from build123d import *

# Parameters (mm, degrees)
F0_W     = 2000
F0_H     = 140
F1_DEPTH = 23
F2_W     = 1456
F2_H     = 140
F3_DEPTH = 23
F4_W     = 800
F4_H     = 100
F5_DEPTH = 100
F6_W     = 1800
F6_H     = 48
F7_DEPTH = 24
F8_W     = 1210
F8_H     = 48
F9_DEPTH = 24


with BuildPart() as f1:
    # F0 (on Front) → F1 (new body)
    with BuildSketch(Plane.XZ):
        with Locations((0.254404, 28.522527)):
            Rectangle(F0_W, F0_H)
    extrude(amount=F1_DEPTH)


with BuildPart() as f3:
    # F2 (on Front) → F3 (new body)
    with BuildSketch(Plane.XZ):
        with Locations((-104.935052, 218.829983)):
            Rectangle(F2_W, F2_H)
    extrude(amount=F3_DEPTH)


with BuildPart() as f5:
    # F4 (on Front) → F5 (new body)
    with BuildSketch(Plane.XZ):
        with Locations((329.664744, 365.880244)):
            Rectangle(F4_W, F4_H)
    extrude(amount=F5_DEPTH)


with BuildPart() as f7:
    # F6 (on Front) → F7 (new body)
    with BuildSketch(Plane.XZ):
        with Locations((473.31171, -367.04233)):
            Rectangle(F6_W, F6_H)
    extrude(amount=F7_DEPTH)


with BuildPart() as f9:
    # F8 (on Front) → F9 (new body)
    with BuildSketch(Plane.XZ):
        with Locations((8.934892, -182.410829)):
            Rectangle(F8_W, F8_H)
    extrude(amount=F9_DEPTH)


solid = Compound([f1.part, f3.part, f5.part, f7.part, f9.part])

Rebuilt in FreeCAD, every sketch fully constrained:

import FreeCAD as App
import Part
import Sketcher
from FreeCAD import Vector
Q = App.Units.Quantity

doc = App.newDocument("Part")
params = doc.addObject("Spreadsheet::Sheet", "Params")
for row, (alias, value) in enumerate([
    ("sketch1_width", "2000 mm"),
    ("sketch1_height", "140 mm"),
    ("pad1_length", "23 mm"),
    ("sketch2_width", "1456 mm"),
    ("sketch2_height", "140 mm"),
    ("pad2_length", "23 mm"),
    ("sketch3_width", "800 mm"),
    ("sketch3_height", "100 mm"),
    ("pad3_length", "100 mm"),
    ("sketch4_width", "1800 mm"),
    ("sketch4_height", "48 mm"),
    ("pad4_length", "24 mm"),
    ("sketch5_width", "1210 mm"),
    ("sketch5_height", "48 mm"),
    ("pad5_length", "24 mm"),
], start=1):
    params.set(f"A{row}", alias)
    params.set(f"B{row}", "=" + value)
    params.setAlias(f"B{row}", alias)

body = doc.addObject("PartDesign::Body", "Body")

# Sketch on XZ plane
sketch1 = body.newObject("Sketcher::SketchObject", "Sketch")
sketch1.AttachmentSupport = (doc.getObject("XZ_Plane"), [""])
sketch1.MapMode = "FlatFace"
sketch1.addGeometry([
    Part.LineSegment(Vector(-1000, 99, 0), Vector(-1000, -41, 0)),
    Part.LineSegment(Vector(-1000, -41, 0), Vector(1000, -41, 0)),
    Part.LineSegment(Vector(1000, -41, 0), Vector(1000, 99, 0)),
    Part.LineSegment(Vector(1000, 99, 0), Vector(-1000, 99, 0)),
], False)
sketch1.addConstraint([
    Sketcher.Constraint("Coincident", 0, 2, 1, 1),
    Sketcher.Constraint("Coincident", 1, 2, 2, 1),
    Sketcher.Constraint("Coincident", 2, 2, 3, 1),
    Sketcher.Constraint("Coincident", 3, 2, 0, 1),
    Sketcher.Constraint("Vertical", 0),
    Sketcher.Constraint("Horizontal", 1),
    Sketcher.Constraint("Vertical", 2),
    Sketcher.Constraint("Horizontal", 3),
    Sketcher.Constraint("DistanceX", 1, 1, 1, 2, Q("2000 mm")),
    Sketcher.Constraint("DistanceY", 0, 2, 0, 1, Q("140 mm")),
    Sketcher.Constraint("DistanceX", 0, 2, -1, 1, Q("999.745596 mm")),
    Sketcher.Constraint("DistanceY", 0, 2, -1, 1, Q("41.477473 mm")),
])
sketch1.setExpression("Constraints[8]", "Params.sketch1_width")
sketch1.setExpression("Constraints[9]", "Params.sketch1_height")
pad1 = body.newObject("PartDesign::Pad", "Pad")
pad1.Profile = sketch1
pad1.setExpression("Length", "Params.pad1_length")
body2 = doc.addObject("PartDesign::Body", "Body001")

# Sketch on XZ plane
sketch2 = body2.newObject("Sketcher::SketchObject", "Sketch001")
sketch2.AttachmentSupport = (doc.getObject("XZ_Plane001"), [""])
sketch2.MapMode = "FlatFace"
sketch2.addGeometry([
    Part.LineSegment(Vector(-833, 289, 0), Vector(-833, 149, 0)),
    Part.LineSegment(Vector(-833, 149, 0), Vector(623, 149, 0)),
    Part.LineSegment(Vector(623, 149, 0), Vector(623, 289, 0)),
    Part.LineSegment(Vector(623, 289, 0), Vector(-833, 289, 0)),
], False)
sketch2.addConstraint([
    Sketcher.Constraint("Coincident", 0, 2, 1, 1),
    Sketcher.Constraint("Coincident", 1, 2, 2, 1),
    Sketcher.Constraint("Coincident", 2, 2, 3, 1),
    Sketcher.Constraint("Coincident", 3, 2, 0, 1),
    Sketcher.Constraint("Vertical", 0),
    Sketcher.Constraint("Horizontal", 1),
    Sketcher.Constraint("Vertical", 2),
    Sketcher.Constraint("Horizontal", 3),
    Sketcher.Constraint("DistanceX", 1, 1, 1, 2, Q("1456 mm")),
    Sketcher.Constraint("DistanceY", 0, 2, 0, 1, Q("140 mm")),
    Sketcher.Constraint("DistanceX", 0, 2, -1, 1, Q("832.935052 mm")),
    Sketcher.Constraint("DistanceY", -1, 1, 0, 2, Q("148.829983 mm")),
])
sketch2.setExpression("Constraints[8]", "Params.sketch2_width")
sketch2.setExpression("Constraints[9]", "Params.sketch2_height")
pad2 = body2.newObject("PartDesign::Pad", "Pad001")
pad2.Profile = sketch2
pad2.setExpression("Length", "Params.pad2_length")
body3 = doc.addObject("PartDesign::Body", "Body002")

# Sketch on XZ plane
sketch3 = body3.newObject("Sketcher::SketchObject", "Sketch002")
sketch3.AttachmentSupport = (doc.getObject("XZ_Plane002"), [""])
sketch3.MapMode = "FlatFace"
sketch3.addGeometry([
    Part.LineSegment(Vector(-70, 416, 0), Vector(-70, 316, 0)),
    Part.LineSegment(Vector(-70, 316, 0), Vector(730, 316, 0)),
    Part.LineSegment(Vector(730, 316, 0), Vector(730, 416, 0)),
    Part.LineSegment(Vector(730, 416, 0), Vector(-70, 416, 0)),
], False)
sketch3.addConstraint([
    Sketcher.Constraint("Coincident", 0, 2, 1, 1),
    Sketcher.Constraint("Coincident", 1, 2, 2, 1),
    Sketcher.Constraint("Coincident", 2, 2, 3, 1),
    Sketcher.Constraint("Coincident", 3, 2, 0, 1),
    Sketcher.Constraint("Vertical", 0),
    Sketcher.Constraint("Horizontal", 1),
    Sketcher.Constraint("Vertical", 2),
    Sketcher.Constraint("Horizontal", 3),
    Sketcher.Constraint("DistanceX", 1, 1, 1, 2, Q("800 mm")),
    Sketcher.Constraint("DistanceY", 0, 2, 0, 1, Q("100 mm")),
    Sketcher.Constraint("DistanceX", 0, 2, -1, 1, Q("70.335256 mm")),
    Sketcher.Constraint("DistanceY", -1, 1, 0, 2, Q("315.880244 mm")),
])
sketch3.setExpression("Constraints[8]", "Params.sketch3_width")
sketch3.setExpression("Constraints[9]", "Params.sketch3_height")
pad3 = body3.newObject("PartDesign::Pad", "Pad002")
pad3.Profile = sketch3
pad3.setExpression("Length", "Params.pad3_length")
body4 = doc.addObject("PartDesign::Body", "Body003")

# Sketch on XZ plane
sketch4 = body4.newObject("Sketcher::SketchObject", "Sketch003")
sketch4.AttachmentSupport = (doc.getObject("XZ_Plane003"), [""])
sketch4.MapMode = "FlatFace"
sketch4.addGeometry([
    Part.LineSegment(Vector(-427, -343, 0), Vector(-427, -391, 0)),
    Part.LineSegment(Vector(-427, -391, 0), Vector(1373, -391, 0)),
    Part.LineSegment(Vector(1373, -391, 0), Vector(1373, -343, 0)),
    Part.LineSegment(Vector(1373, -343, 0), Vector(-427, -343, 0)),
], False)
sketch4.addConstraint([
    Sketcher.Constraint("Coincident", 0, 2, 1, 1),
    Sketcher.Constraint("Coincident", 1, 2, 2, 1),
    Sketcher.Constraint("Coincident", 2, 2, 3, 1),
    Sketcher.Constraint("Coincident", 3, 2, 0, 1),
    Sketcher.Constraint("Vertical", 0),
    Sketcher.Constraint("Horizontal", 1),
    Sketcher.Constraint("Vertical", 2),
    Sketcher.Constraint("Horizontal", 3),
    Sketcher.Constraint("DistanceX", 1, 1, 1, 2, Q("1800 mm")),
    Sketcher.Constraint("DistanceY", 0, 2, 0, 1, Q("48 mm")),
    Sketcher.Constraint("DistanceX", 0, 2, -1, 1, Q("426.68829 mm")),
    Sketcher.Constraint("DistanceY", 0, 2, -1, 1, Q("391.04233 mm")),
])
sketch4.setExpression("Constraints[8]", "Params.sketch4_width")
sketch4.setExpression("Constraints[9]", "Params.sketch4_height")
pad4 = body4.newObject("PartDesign::Pad", "Pad003")
pad4.Profile = sketch4
pad4.setExpression("Length", "Params.pad4_length")
body5 = doc.addObject("PartDesign::Body", "Body004")

# Sketch on XZ plane
sketch5 = body5.newObject("Sketcher::SketchObject", "Sketch004")
sketch5.AttachmentSupport = (doc.getObject("XZ_Plane004"), [""])
sketch5.MapMode = "FlatFace"
sketch5.addGeometry([
    Part.LineSegment(Vector(-596, -158, 0), Vector(-596, -206, 0)),
    Part.LineSegment(Vector(-596, -206, 0), Vector(614, -206, 0)),
    Part.LineSegment(Vector(614, -206, 0), Vector(614, -158, 0)),
    Part.LineSegment(Vector(614, -158, 0), Vector(-596, -158, 0)),
], False)
sketch5.addConstraint([
    Sketcher.Constraint("Coincident", 0, 2, 1, 1),
    Sketcher.Constraint("Coincident", 1, 2, 2, 1),
    Sketcher.Constraint("Coincident", 2, 2, 3, 1),
    Sketcher.Constraint("Coincident", 3, 2, 0, 1),
    Sketcher.Constraint("Vertical", 0),
    Sketcher.Constraint("Horizontal", 1),
    Sketcher.Constraint("Vertical", 2),
    Sketcher.Constraint("Horizontal", 3),
    Sketcher.Constraint("DistanceX", 1, 1, 1, 2, Q("1210 mm")),
    Sketcher.Constraint("DistanceY", 0, 2, 0, 1, Q("48 mm")),
    Sketcher.Constraint("DistanceX", 0, 2, -1, 1, Q("596.065108 mm")),
    Sketcher.Constraint("DistanceY", 0, 2, -1, 1, Q("206.410829 mm")),
])
sketch5.setExpression("Constraints[8]", "Params.sketch5_width")
sketch5.setExpression("Constraints[9]", "Params.sketch5_height")
pad5 = body5.newObject("PartDesign::Pad", "Pad004")
pad5.Profile = sketch5
pad5.setExpression("Length", "Params.pad5_length")

doc.recompute()
